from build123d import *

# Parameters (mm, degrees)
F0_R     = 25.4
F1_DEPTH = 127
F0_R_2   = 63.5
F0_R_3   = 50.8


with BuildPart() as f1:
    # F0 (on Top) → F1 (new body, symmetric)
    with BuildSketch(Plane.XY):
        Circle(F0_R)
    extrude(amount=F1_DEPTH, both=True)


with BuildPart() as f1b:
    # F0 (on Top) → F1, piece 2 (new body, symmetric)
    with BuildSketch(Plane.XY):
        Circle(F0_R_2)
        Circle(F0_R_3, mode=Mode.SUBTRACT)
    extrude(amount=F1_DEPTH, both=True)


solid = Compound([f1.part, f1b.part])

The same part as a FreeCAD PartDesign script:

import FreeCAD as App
import Part
import Sketcher
from FreeCAD import Vector
Q = App.Units.Quantity

doc = App.newDocument("Part")
body = doc.addObject("PartDesign::Body", "Body")

# Sketch on XY plane
sketch1 = body.newObject("Sketcher::SketchObject", "Sketch")
sketch1.AttachmentSupport = (doc.getObject("XY_Plane"), [""])
sketch1.MapMode = "FlatFace"
sketch1.addGeometry(Part.Circle(Vector(0, 0, 0), Vector(0, 0, 1), 25), False)
sketch1.addConstraint(Sketcher.Constraint("Coincident", 0, 3, -1, 1))
sketch1.addConstraint(Sketcher.Constraint("Diameter", 0, Q("2 in")))
pad1 = body.newObject("PartDesign::Pad", "Pad")
pad1.Profile = sketch1
pad1.Length = Q("10 in")
pad1.Midplane = True
body2 = doc.addObject("PartDesign::Body", "Body001")

# Sketch on XY plane
sketch2 = body2.newObject("Sketcher::SketchObject", "Sketch001")
sketch2.AttachmentSupport = (doc.getObject("XY_Plane001"), [""])
sketch2.MapMode = "FlatFace"
sketch2.addGeometry(Part.Circle(Vector(0, 0, 0), Vector(0, 0, 1), 64), False)
sketch2.addGeometry(Part.Circle(Vector(0, 0, 0), Vector(0, 0, 1), 51), False)
sketch2.addConstraint(Sketcher.Constraint("Coincident", 0, 3, -1, 1))
sketch2.addConstraint(Sketcher.Constraint("Coincident", 1, 3, -1, 1))
sketch2.addConstraint(Sketcher.Constraint("Diameter", 0, Q("5 in")))
sketch2.addConstraint(Sketcher.Constraint("Diameter", 1, Q("4 in")))
pad2 = body2.newObject("PartDesign::Pad", "Pad001")
pad2.Profile = sketch2
pad2.Length = Q("10 in")
pad2.Midplane = True

doc.recompute()
